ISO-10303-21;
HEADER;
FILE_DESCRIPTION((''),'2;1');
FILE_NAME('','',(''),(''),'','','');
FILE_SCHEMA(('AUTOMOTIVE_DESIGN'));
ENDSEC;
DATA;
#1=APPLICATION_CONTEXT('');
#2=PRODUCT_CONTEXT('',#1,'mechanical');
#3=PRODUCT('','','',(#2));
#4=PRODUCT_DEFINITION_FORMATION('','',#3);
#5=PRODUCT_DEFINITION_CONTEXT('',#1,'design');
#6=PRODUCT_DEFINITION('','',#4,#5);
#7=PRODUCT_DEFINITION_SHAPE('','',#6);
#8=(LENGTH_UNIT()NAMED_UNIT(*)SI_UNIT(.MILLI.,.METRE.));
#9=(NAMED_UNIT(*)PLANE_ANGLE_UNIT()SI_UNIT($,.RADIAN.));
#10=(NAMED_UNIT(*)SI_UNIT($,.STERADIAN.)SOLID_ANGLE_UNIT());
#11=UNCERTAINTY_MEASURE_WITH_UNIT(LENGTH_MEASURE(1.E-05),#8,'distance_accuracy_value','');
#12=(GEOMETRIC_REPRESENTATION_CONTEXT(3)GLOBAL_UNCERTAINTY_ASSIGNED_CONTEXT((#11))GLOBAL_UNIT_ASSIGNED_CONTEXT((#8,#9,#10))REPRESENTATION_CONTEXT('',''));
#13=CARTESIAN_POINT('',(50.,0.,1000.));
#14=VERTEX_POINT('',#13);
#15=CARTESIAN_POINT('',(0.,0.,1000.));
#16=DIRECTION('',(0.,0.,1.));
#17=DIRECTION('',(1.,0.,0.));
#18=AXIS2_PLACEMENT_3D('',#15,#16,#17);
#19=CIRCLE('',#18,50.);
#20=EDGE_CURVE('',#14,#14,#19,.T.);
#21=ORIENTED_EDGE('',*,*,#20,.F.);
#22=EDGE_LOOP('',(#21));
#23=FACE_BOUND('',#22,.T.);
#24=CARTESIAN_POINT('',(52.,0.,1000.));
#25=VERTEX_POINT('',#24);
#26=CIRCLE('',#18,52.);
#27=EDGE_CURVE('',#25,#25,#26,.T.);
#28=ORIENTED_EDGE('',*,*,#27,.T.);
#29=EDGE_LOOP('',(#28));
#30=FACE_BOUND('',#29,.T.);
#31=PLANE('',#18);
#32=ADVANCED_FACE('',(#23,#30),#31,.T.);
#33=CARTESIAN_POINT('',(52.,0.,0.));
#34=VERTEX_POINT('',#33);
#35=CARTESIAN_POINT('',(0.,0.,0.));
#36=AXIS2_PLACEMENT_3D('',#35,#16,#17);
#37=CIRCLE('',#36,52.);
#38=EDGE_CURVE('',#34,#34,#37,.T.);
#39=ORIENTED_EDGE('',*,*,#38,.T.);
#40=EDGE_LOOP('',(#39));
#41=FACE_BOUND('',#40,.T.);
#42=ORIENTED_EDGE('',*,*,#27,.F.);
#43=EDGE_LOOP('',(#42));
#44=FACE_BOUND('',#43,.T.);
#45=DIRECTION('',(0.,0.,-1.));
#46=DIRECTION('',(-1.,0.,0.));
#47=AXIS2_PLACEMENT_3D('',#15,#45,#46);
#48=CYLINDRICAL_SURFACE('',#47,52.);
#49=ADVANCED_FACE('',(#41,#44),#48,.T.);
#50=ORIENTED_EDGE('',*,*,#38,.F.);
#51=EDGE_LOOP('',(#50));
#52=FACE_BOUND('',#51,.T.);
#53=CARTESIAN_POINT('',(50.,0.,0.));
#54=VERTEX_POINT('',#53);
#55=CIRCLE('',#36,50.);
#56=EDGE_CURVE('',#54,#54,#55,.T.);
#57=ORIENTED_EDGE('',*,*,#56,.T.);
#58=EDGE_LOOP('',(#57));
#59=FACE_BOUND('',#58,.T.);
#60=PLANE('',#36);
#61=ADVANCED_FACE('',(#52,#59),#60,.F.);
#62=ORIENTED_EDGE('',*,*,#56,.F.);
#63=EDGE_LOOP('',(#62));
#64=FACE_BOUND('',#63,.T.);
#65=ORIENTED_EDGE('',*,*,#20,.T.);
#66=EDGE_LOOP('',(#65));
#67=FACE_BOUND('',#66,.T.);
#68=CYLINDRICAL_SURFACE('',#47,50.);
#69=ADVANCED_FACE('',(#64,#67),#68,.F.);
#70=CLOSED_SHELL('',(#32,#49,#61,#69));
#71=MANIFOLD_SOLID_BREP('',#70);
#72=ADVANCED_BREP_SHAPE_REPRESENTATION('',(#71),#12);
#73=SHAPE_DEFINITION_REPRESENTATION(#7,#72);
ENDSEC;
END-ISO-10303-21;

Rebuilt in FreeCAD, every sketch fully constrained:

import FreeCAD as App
import Part
import Sketcher

doc = App.newDocument("Part")
body = doc.addObject("PartDesign::Body", "Body")

# Sketch on XY plane
sketch1 = doc.addObject("Sketcher::SketchObject", "Sketch")
body.addObject(sketch1)
sketch1.AttachmentSupport = (doc.XY_Plane, [""])
sketch1.MapMode = "FlatFace"
sketch1.addGeometry(Part.Circle(App.Vector(0, 0, 0), App.Vector(0, 0, 1), 52), False)
sketch1.addGeometry(Part.Circle(App.Vector(0, 0, 0), App.Vector(0, 0, 1), 50), False)
sketch1.addConstraint(Sketcher.Constraint("Coincident", 0, 3, -1, 1))
sketch1.addConstraint(Sketcher.Constraint("Coincident", 1, 3, -1, 1))
sketch1.addConstraint(Sketcher.Constraint("Diameter", 0, 104.0))
sketch1.addConstraint(Sketcher.Constraint("Diameter", 1, 100.0))
pad1 = doc.addObject("PartDesign::Pad", "Pad")
body.addObject(pad1)
pad1.Profile = sketch1
pad1.Length = 1000

doc.recompute()
